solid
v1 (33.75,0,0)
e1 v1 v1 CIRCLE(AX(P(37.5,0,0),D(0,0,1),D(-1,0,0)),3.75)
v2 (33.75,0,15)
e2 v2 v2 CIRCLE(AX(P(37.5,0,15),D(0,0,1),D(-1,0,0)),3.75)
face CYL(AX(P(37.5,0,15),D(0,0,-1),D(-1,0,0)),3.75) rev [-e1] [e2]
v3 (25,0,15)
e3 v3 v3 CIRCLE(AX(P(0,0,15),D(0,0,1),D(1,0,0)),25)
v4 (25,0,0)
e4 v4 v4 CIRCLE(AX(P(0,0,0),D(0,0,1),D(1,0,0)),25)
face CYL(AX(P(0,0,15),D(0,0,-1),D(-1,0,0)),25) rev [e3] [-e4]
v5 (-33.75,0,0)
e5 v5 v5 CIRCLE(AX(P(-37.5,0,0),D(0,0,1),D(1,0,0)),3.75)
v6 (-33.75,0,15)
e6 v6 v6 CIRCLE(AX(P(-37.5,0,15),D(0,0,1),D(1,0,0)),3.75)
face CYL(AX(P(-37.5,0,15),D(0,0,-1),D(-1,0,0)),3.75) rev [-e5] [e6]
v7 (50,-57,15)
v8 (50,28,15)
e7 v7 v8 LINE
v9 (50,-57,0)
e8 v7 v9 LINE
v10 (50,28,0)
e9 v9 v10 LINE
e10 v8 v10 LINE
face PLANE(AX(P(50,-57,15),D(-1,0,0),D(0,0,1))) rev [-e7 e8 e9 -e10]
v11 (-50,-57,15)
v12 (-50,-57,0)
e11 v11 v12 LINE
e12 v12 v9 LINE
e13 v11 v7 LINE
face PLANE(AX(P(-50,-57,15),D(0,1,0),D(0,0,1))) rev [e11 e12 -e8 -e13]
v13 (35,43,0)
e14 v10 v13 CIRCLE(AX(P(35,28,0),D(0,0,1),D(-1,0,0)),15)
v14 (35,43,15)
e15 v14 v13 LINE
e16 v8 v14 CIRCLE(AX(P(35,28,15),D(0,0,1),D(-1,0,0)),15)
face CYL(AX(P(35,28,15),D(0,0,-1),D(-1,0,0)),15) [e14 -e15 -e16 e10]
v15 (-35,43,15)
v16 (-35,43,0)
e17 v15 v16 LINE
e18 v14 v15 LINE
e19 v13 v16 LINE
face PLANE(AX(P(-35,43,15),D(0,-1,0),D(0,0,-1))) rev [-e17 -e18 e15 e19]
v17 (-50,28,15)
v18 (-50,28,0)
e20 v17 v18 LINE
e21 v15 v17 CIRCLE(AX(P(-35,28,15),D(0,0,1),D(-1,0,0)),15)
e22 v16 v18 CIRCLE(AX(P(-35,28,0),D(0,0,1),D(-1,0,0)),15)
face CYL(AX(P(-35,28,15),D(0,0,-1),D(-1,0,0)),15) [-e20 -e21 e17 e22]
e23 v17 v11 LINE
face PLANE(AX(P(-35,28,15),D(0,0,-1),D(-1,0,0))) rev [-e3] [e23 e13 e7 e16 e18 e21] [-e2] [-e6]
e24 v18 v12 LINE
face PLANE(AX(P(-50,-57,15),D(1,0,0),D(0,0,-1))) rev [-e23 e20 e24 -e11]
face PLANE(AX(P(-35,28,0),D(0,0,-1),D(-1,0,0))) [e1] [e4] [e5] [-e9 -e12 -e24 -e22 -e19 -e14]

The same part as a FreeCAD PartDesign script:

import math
import FreeCAD as App
import Part
import Sketcher

V = App.Vector

doc = App.newDocument("Part")
body = doc.addObject("PartDesign::Body", "Body")

# Sketch on XY plane
sketch1 = doc.addObject("Sketcher::SketchObject", "Sketch")
body.addObject(sketch1)
sketch1.AttachmentSupport = (doc.XY_Plane, [""])
sketch1.MapMode = "FlatFace"
sketch1.addGeometry([
    Part.LineSegment(V(-50, -57, 0), V(50, -57, 0)),  # 0
    Part.LineSegment(V(50, -57, 0), V(50, 28, 0)),  # 1
    Part.ArcOfCircle(Part.Circle(V(35, 28, 0), V(0, 0, 1), 15), math.radians(0), math.radians(90)),  # 2
    Part.LineSegment(V(35, 43, 0), V(-35, 43, 0)),  # 3
    Part.ArcOfCircle(Part.Circle(V(-35, 28, 0), V(0, 0, 1), 15), math.radians(90), math.radians(180)),  # 4
    Part.LineSegment(V(-50, 28, 0), V(-50, -57, 0)),  # 5
    Part.Circle(V(-37.5, 0, 0), V(0, 0, 1), 3.75),  # 6
    Part.Circle(V(0, 0, 0), V(0, 0, 1), 25),  # 7
    Part.Circle(V(37.5, 0, 0), V(0, 0, 1), 3.75),  # 8
], False)
sketch1.addConstraint([
    Sketcher.Constraint("Coincident", 0, 2, 1, 1),
    Sketcher.Constraint("Tangent", 1, 2, 2, 1),
    Sketcher.Constraint("Tangent", 2, 2, 3, 1),
    Sketcher.Constraint("Tangent", 3, 2, 4, 1),
    Sketcher.Constraint("Tangent", 4, 2, 5, 1),
    Sketcher.Constraint("Coincident", 5, 2, 0, 1),
    Sketcher.Constraint("Horizontal", 0),
    Sketcher.Constraint("Vertical", 1),
    Sketcher.Constraint("Horizontal", 3),
    Sketcher.Constraint("Vertical", 5),
    Sketcher.Constraint("Coincident", 7, 3, -1, 1),
    Sketcher.Constraint("Equal", 2, 4),
    Sketcher.Constraint("Equal", 6, 8),
    Sketcher.Constraint("Symmetric", 6, 3, 8, 3, -1, 1),
    Sketcher.Constraint("PointOnObject", 6, 3, -1),
    Sketcher.Constraint("Diameter", 7, 50.0),
    Sketcher.Constraint("Radius", 2, 15.0),
    Sketcher.Constraint("Diameter", 6, 7.5),
    Sketcher.Constraint("DistanceX", 0, 1, 0, 2, 100.0),
    Sketcher.Constraint("DistanceY", 1, 1, 1, 2, 85.0),
    Sketcher.Constraint("DistanceX", -1, 1, 2, 3, 35.0),
    Sketcher.Constraint("DistanceY", -1, 1, 2, 3, 28.0),
    Sketcher.Constraint("DistanceX", 6, 3, 8, 3, 75.0),
])
pad1 = doc.addObject("PartDesign::Pad", "Pad")
body.addObject(pad1)
pad1.Profile = sketch1
pad1.Length = 15

doc.recompute()
